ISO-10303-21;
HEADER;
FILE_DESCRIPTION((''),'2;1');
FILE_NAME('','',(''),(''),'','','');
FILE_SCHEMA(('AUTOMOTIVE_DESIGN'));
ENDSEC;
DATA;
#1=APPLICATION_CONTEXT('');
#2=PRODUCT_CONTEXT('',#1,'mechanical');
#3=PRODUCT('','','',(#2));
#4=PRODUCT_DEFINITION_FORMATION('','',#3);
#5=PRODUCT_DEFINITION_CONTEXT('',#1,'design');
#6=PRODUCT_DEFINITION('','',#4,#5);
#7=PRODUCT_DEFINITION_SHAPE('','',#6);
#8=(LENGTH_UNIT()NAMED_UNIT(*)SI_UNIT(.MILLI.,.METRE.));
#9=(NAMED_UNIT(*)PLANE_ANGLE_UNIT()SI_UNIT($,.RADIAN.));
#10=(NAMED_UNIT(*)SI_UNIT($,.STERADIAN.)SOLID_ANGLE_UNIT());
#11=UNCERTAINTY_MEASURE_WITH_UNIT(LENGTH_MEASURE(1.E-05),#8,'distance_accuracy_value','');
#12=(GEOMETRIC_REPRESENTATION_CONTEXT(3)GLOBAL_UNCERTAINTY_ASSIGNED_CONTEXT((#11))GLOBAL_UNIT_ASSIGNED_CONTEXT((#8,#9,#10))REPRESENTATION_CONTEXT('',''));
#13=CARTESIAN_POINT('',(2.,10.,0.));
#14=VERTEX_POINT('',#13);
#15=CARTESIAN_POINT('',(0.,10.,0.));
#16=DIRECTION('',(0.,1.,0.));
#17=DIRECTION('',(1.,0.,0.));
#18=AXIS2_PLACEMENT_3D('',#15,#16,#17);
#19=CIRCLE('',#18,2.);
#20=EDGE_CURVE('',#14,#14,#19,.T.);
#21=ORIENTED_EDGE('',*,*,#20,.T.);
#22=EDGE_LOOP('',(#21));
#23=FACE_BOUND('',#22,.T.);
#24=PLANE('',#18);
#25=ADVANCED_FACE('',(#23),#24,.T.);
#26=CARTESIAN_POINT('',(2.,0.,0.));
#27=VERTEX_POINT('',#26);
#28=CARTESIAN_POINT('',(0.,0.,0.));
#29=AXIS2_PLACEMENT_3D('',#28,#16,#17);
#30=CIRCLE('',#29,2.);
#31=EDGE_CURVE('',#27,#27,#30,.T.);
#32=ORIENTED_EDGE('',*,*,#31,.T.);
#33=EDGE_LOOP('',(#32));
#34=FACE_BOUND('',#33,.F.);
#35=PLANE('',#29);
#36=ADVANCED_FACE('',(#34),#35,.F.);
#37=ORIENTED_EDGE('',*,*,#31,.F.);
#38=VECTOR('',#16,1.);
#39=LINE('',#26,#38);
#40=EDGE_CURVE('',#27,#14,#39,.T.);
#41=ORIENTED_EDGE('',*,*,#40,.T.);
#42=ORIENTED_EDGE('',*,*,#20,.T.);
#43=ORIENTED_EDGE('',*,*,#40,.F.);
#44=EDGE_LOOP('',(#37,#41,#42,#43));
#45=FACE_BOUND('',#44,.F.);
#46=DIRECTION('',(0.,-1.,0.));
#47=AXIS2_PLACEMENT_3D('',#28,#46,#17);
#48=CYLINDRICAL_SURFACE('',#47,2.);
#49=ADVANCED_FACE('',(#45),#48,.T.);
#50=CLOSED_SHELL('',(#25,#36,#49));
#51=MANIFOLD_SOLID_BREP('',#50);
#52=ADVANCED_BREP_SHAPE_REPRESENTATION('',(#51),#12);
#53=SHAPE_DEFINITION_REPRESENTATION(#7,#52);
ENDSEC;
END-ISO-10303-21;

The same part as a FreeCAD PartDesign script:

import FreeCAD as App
import Part
import Sketcher
from FreeCAD import Vector
Q = App.Units.Quantity

doc = App.newDocument("Part")
params = doc.addObject("Spreadsheet::Sheet", "Params")
for row, (alias, value) in enumerate([
    ("sketch1_diameter", "4 mm"),
    ("pad1_length", "10 mm"),
], start=1):
    params.set(f"A{row}", alias)
    params.set(f"B{row}", "=" + value)
    params.setAlias(f"B{row}", alias)

body = doc.addObject("PartDesign::Body", "Body")

sketch1 = doc.addObject("Sketcher::SketchObject", "Sketch")
body.addObject(sketch1)
sketch1.AttachmentSupport = (doc.XZ_Plane, [""])
sketch1.MapMode = "FlatFace"
sketch1.addGeometry(Part.Circle(Vector(0, 0, 0), Vector(0, 0, 1), 2), False)
sketch1.addConstraint([
    Sketcher.Constraint("Coincident", 0, 3, -1, 1),
    Sketcher.Constraint("Diameter", 0, Q("4 mm")),
])
sketch1.setExpression("Constraints[1]", "Params.sketch1_diameter")
pad1 = doc.addObject("PartDesign::Pad", "Pad")
body.addObject(pad1)
pad1.Profile = sketch1
pad1.setExpression("Length", "Params.pad1_length")
pad1.Reversed = True

doc.recompute()
